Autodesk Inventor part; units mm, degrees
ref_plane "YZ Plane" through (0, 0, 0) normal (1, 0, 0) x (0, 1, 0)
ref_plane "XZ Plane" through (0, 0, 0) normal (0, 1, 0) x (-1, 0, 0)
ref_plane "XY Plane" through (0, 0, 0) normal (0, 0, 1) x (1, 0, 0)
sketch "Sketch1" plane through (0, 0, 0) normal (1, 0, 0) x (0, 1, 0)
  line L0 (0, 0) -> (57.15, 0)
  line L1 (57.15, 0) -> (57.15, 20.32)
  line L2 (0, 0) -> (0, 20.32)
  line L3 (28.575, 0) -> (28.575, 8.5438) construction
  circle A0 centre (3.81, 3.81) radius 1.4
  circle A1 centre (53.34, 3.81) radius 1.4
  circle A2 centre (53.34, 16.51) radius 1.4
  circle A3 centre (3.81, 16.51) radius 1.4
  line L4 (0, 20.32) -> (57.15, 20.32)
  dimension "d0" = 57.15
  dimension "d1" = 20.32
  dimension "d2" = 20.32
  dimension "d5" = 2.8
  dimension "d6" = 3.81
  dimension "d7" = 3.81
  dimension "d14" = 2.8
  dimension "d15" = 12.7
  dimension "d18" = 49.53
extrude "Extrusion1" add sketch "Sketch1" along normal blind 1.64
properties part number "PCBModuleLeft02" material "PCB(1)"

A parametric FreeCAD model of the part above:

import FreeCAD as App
import Part
import Sketcher
Q = App.Units.Quantity

doc = App.newDocument("Part")
body = doc.addObject("PartDesign::Body", "Body")

# Sketch on YZ plane
sketch1 = doc.addObject("Sketcher::SketchObject", "Sketch")
body.addObject(sketch1)
sketch1.AttachmentSupport = (doc.YZ_Plane, [""])
sketch1.MapMode = "FlatFace"
sketch1.addGeometry([
    Part.LineSegment(App.Vector(0, 20.32, 0), App.Vector(0, 0, 0)),  # 0
    Part.LineSegment(App.Vector(0, 0, 0), App.Vector(57.15, 0, 0)),  # 1
    Part.LineSegment(App.Vector(57.15, 0, 0), App.Vector(57.15, 20.32, 0)),  # 2
    Part.LineSegment(App.Vector(57.15, 20.32, 0), App.Vector(0, 20.32, 0)),  # 3
    Part.Circle(App.Vector(3.81, 3.81, 0), App.Vector(0, 0, 1), 1.4),  # 4
    Part.Circle(App.Vector(53.34, 3.81, 0), App.Vector(0, 0, 1), 1.4),  # 5
    Part.Circle(App.Vector(3.81, 16.51, 0), App.Vector(0, 0, 1), 1.4),  # 6
    Part.Circle(App.Vector(53.34, 16.51, 0), App.Vector(0, 0, 1), 1.4),  # 7
], False)
sketch1.addConstraint([
    Sketcher.Constraint("Coincident", 0, 2, 1, 1),
    Sketcher.Constraint("Coincident", 1, 2, 2, 1),
    Sketcher.Constraint("Coincident", 2, 2, 3, 1),
    Sketcher.Constraint("Coincident", 3, 2, 0, 1),
    Sketcher.Constraint("Vertical", 0),
    Sketcher.Constraint("Horizontal", 1),
    Sketcher.Constraint("Vertical", 2),
    Sketcher.Constraint("Horizontal", 3),
    Sketcher.Constraint("Coincident", 0, 2, -1, 1),
    Sketcher.Constraint("Equal", 4, 5),
    Sketcher.Constraint("Equal", 5, 6),
    Sketcher.Constraint("Equal", 6, 7),
    Sketcher.Constraint("Horizontal", 4, 3, 5, 3),
    Sketcher.Constraint("Horizontal", 6, 3, 7, 3),
    Sketcher.Constraint("Vertical", 4, 3, 6, 3),
    Sketcher.Constraint("Vertical", 5, 3, 7, 3),
    Sketcher.Constraint("DistanceY", 0, 2, 0, 1, Q("0.8 in")),
    Sketcher.Constraint("DistanceX", 1, 1, 1, 2, Q("2.25 in")),
    Sketcher.Constraint("DistanceY", 4, 3, 6, 3, Q("0.5 in")),
    Sketcher.Constraint("Diameter", 4, 2.8),
    Sketcher.Constraint("DistanceX", -1, 1, 4, 3, Q("0.15 in")),
    Sketcher.Constraint("DistanceY", -1, 1, 4, 3, Q("0.15 in")),
    Sketcher.Constraint("DistanceX", 4, 3, 5, 3, Q("1.95 in")),
])
pad1 = doc.addObject("PartDesign::Pad", "Pad")
body.addObject(pad1)
pad1.Profile = sketch1
pad1.Length = 1.64

doc.recompute()
